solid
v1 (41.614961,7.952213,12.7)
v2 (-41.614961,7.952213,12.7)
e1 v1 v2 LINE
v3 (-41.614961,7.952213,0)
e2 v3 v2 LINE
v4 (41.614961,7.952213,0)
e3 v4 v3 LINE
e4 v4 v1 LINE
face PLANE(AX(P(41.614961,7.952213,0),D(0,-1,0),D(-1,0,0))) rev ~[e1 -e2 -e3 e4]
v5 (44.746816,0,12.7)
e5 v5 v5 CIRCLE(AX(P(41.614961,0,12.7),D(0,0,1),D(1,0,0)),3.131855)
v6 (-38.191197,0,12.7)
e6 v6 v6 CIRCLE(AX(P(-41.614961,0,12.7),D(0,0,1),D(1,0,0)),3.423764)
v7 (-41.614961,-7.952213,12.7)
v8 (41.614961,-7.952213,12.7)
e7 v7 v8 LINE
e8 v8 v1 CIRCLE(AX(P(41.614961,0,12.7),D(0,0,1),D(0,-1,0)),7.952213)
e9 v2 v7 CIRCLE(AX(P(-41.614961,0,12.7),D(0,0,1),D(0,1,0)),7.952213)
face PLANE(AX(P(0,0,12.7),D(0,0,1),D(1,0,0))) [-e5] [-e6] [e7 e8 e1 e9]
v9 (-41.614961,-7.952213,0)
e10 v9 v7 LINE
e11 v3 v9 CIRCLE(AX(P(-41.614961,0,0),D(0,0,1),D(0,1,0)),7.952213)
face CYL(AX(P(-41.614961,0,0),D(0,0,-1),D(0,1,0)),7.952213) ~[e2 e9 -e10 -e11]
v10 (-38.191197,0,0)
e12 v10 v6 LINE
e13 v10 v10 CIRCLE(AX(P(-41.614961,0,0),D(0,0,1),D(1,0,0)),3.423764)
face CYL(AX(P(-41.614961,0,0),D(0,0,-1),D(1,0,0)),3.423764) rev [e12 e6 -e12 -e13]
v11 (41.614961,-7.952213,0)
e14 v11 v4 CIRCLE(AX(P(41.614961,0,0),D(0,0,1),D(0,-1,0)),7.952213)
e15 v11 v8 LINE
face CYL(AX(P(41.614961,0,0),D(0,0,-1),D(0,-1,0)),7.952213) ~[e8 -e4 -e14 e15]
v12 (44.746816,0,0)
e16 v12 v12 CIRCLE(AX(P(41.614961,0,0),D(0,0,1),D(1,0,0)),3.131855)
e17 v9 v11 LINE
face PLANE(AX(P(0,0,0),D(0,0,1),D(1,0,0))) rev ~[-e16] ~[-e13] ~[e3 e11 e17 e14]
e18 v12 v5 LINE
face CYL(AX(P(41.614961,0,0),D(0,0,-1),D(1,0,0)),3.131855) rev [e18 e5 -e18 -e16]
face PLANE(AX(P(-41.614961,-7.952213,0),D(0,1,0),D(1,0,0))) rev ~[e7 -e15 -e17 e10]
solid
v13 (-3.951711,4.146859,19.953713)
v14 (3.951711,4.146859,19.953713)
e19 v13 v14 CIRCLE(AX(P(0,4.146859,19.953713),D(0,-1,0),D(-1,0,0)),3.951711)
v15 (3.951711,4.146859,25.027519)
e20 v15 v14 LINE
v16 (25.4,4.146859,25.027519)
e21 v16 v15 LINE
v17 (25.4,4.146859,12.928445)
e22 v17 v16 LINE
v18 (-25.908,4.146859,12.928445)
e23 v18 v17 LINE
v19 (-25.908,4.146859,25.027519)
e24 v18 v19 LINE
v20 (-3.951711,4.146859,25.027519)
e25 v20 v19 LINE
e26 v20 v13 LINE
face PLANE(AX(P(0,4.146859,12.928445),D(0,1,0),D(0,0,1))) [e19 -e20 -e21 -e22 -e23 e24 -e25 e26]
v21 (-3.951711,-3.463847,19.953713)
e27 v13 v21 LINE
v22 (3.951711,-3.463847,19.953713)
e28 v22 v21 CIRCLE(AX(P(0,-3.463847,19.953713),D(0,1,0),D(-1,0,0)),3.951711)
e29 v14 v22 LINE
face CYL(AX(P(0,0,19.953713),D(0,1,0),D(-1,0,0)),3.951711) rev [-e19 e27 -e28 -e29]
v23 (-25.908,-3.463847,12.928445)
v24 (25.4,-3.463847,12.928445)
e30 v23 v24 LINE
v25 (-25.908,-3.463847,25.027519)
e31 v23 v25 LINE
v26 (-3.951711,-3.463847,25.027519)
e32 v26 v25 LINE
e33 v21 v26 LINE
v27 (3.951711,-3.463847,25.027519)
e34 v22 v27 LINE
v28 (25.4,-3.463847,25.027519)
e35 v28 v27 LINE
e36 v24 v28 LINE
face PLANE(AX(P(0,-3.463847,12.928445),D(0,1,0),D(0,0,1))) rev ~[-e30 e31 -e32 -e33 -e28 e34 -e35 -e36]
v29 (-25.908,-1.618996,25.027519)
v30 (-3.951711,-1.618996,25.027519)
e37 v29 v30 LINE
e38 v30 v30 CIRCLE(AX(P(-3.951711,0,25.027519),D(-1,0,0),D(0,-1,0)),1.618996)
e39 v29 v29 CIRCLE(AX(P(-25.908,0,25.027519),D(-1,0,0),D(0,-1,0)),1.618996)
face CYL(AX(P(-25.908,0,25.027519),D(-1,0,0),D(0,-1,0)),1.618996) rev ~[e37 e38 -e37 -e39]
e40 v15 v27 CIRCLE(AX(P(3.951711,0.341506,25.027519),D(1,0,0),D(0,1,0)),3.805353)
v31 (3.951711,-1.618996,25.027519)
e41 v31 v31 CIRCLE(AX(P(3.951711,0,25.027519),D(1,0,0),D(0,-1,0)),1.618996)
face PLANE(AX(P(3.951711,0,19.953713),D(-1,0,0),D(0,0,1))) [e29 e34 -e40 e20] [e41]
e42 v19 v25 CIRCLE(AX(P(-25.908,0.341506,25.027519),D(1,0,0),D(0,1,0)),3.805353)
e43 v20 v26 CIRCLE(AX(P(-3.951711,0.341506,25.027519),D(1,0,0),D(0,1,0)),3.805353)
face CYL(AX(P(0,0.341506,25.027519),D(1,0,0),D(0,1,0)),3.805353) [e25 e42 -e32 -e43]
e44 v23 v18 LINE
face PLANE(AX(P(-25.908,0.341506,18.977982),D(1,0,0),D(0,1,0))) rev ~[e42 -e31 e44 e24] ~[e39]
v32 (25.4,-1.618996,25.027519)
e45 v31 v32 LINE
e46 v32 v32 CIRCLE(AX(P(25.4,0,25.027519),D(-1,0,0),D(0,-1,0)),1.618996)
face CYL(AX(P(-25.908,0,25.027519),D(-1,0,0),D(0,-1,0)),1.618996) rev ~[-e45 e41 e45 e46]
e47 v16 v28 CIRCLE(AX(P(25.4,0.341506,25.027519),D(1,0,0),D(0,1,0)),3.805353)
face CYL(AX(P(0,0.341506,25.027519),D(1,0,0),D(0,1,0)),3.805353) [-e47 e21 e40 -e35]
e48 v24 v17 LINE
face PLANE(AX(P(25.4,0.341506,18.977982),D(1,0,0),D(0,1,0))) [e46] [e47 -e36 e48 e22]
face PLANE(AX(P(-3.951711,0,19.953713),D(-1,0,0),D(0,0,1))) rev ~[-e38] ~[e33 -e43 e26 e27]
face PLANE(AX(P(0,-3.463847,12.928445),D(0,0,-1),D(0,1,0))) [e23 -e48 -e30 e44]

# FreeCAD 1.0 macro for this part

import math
import FreeCAD as App
import Part
import Sketcher

V = App.Vector
Q = App.Units.Quantity

doc = App.newDocument("Part")
body = doc.addObject("PartDesign::Body", "Body")

sketch1 = body.newObject("Sketcher::SketchObject", "Sketch")
sketch1.AttachmentSupport = (doc.getObject("XY_Plane"), [""])
sketch1.MapMode = "FlatFace"
sketch1.addGeometry(Part.LineSegment(V(-41.6, -8, 0), V(41.6, -8, 0)), False)
sketch1.addGeometry(Part.ArcOfCircle(Part.Circle(V(41.6, 0, 0), V(0, 0, 1), 8), math.radians(-90), math.radians(90)), False)
sketch1.addGeometry(Part.LineSegment(V(41.6, 8, 0), V(-41.6, 8, 0)), False)
sketch1.addGeometry(Part.ArcOfCircle(Part.Circle(V(-41.6, 0, 0), V(0, 0, 1), 8), math.radians(90), math.radians(270)), False)
sketch1.addGeometry(Part.Circle(V(-41.6, 0, 0), V(0, 0, 1), 3.4), False)
sketch1.addGeometry(Part.Circle(V(41.6, 0, 0), V(0, 0, 1), 3.1), False)
sketch1.addConstraint(Sketcher.Constraint("Tangent", 0, 2, 1, 1))
sketch1.addConstraint(Sketcher.Constraint("Tangent", 1, 2, 2, 1))
sketch1.addConstraint(Sketcher.Constraint("Tangent", 2, 2, 3, 1))
sketch1.addConstraint(Sketcher.Constraint("Tangent", 3, 2, 0, 1))
sketch1.addConstraint(Sketcher.Constraint("Horizontal", 0))
sketch1.addConstraint(Sketcher.Constraint("Horizontal", 2))
sketch1.addConstraint(Sketcher.Constraint("Coincident", 4, 3, 3, 3))
sketch1.addConstraint(Sketcher.Constraint("Coincident", 5, 3, 1, 3))
sketch1.addConstraint(Sketcher.Constraint("Symmetric", 1, 3, 3, 3, -1, 1))
sketch1.addConstraint(Sketcher.Constraint("Diameter", 5, Q("6.26371 mm")))
sketch1.addConstraint(Sketcher.Constraint("Diameter", 4, Q("6.847528 mm")))
sketch1.addConstraint(Sketcher.Constraint("Radius", 1, Q("7.952213 mm")))
sketch1.addConstraint(Sketcher.Constraint("DistanceX", 0, 1, 0, 2, Q("83.229922 mm")))
pad1 = body.newObject("PartDesign::Pad", "Pad")
pad1.Profile = sketch1
pad1.Length = Q("0.5 in")
body2 = doc.addObject("PartDesign::Body", "Body001")

sketch2 = body2.newObject("Sketcher::SketchObject", "Sketch001")
sketch2.AttachmentSupport = (doc.getObject("YZ_Plane001"), [""])
sketch2.MapMode = "FlatFace"
sketch2.addGeometry(Part.LineSegment(V(-3.5, 25, 0), V(-3.5, 12.9, 0)), False)
sketch2.addGeometry(Part.LineSegment(V(-3.5, 12.9, 0), V(4.1, 12.9, 0)), False)
sketch2.addGeometry(Part.LineSegment(V(4.1, 12.9, 0), V(4.1, 25, 0)), False)
sketch2.addGeometry(Part.ArcOfCircle(Part.Circle(V(0.3, 25, 0), V(0, 0, 1), 3.8), math.radians(0), math.radians(180)), False)
sketch2.addConstraint(Sketcher.Constraint("Coincident", 0, 2, 1, 1))
sketch2.addConstraint(Sketcher.Constraint("Coincident", 1, 2, 2, 1))
sketch2.addConstraint(Sketcher.Constraint("Tangent", 2, 2, 3, 1))
sketch2.addConstraint(Sketcher.Constraint("Tangent", 3, 2, 0, 1))
sketch2.addConstraint(Sketcher.Constraint("Vertical", 0))
sketch2.addConstraint(Sketcher.Constraint("Horizontal", 1))
sketch2.addConstraint(Sketcher.Constraint("Vertical", 2))
sketch2.addConstraint(Sketcher.Constraint("Radius", 3, Q("3.805353 mm")))
sketch2.addConstraint(Sketcher.Constraint("DistanceY", 0, 2, 0, 1, Q("12.099074 mm")))
sketch2.addConstraint(Sketcher.Constraint("DistanceY", -1, 1, 3, 3, Q("25.027519 mm")))
sketch2.addConstraint(Sketcher.Constraint("DistanceX", -1, 1, 1, 2, Q("4.146859 mm")))
pad2 = body2.newObject("PartDesign::Pad", "Pad001")
pad2.Profile = sketch2
pad2.Length = Q("1 in")

sketch3 = body2.newObject("Sketcher::SketchObject", "Sketch002")
sketch3.AttachmentSupport = (doc.getObject("YZ_Plane001"), [""])
sketch3.MapMode = "FlatFace"
sketch3.addGeometry(Part.LineSegment(V(-3.5, 25, 0), V(-3.5, 12.9, 0)), False)
sketch3.addGeometry(Part.LineSegment(V(-3.5, 12.9, 0), V(4.1, 12.9, 0)), False)
sketch3.addGeometry(Part.LineSegment(V(4.1, 12.9, 0), V(4.1, 25, 0)), False)
sketch3.addGeometry(Part.ArcOfCircle(Part.Circle(V(0.3, 25, 0), V(0, 0, 1), 3.8), math.radians(0), math.radians(180)), False)
sketch3.addConstraint(Sketcher.Constraint("Coincident", 0, 2, 1, 1))
sketch3.addConstraint(Sketcher.Constraint("Coincident", 1, 2, 2, 1))
sketch3.addConstraint(Sketcher.Constraint("Tangent", 2, 2, 3, 1))
sketch3.addConstraint(Sketcher.Constraint("Tangent", 3, 2, 0, 1))
sketch3.addConstraint(Sketcher.Constraint("Vertical", 0))
sketch3.addConstraint(Sketcher.Constraint("Horizontal", 1))
sketch3.addConstraint(Sketcher.Constraint("Vertical", 2))
sketch3.addConstraint(Sketcher.Constraint("Radius", 3, Q("3.805353 mm")))
sketch3.addConstraint(Sketcher.Constraint("DistanceY", 0, 2, 0, 1, Q("12.099074 mm")))
sketch3.addConstraint(Sketcher.Constraint("DistanceY", -1, 1, 3, 3, Q("25.027519 mm")))
sketch3.addConstraint(Sketcher.Constraint("DistanceX", -1, 1, 1, 2, Q("4.146859 mm")))
pad3 = body2.newObject("PartDesign::Pad", "Pad002")
pad3.Profile = sketch3
pad3.Length = Q("1.02 in")
pad3.Reversed = True

sketch4 = body2.newObject("Sketcher::SketchObject", "Sketch003")
sketch4.AttachmentSupport = (doc.getObject("YZ_Plane001"), [""])
sketch4.MapMode = "FlatFace"
sketch4.AttachmentOffset = App.Placement(V(0, 0, -1.02 * 25.4), App.Rotation())
sketch4.addGeometry(Part.Circle(V(0, 25, 0), V(0, 0, 1), 1.6), False)
sketch4.addConstraint(Sketcher.Constraint("PointOnObject", 0, 3, -2))
sketch4.addConstraint(Sketcher.Constraint("Diameter", 0, Q("3.237992 mm")))
sketch4.addConstraint(Sketcher.Constraint("DistanceY", -1, 1, 0, 3, Q("25.027519 mm")))
pocket1 = body2.newObject("PartDesign::Pocket", "Pocket")
pocket1.Profile = sketch4
pocket1.Length = Q("2.2 in")
pocket1.Reversed = True

sketch5 = body2.newObject("Sketcher::SketchObject", "Sketch004")
sketch5.AttachmentSupport = (doc.getObject("XZ_Plane001"), [""])
sketch5.MapMode = "FlatFace"
sketch5.addGeometry(Part.LineSegment(V(4, 20, 0), V(4, 42.2, 0)), False)
sketch5.addGeometry(Part.LineSegment(V(4, 42.2, 0), V(-4, 42.2, 0)), False)
sketch5.addGeometry(Part.LineSegment(V(-4, 42.2, 0), V(-4, 20, 0)), False)
sketch5.addGeometry(Part.ArcOfCircle(Part.Circle(V(0, 20, 0), V(0, 0, 1), 4), math.radians(180), math.radians(360)), False)
sketch5.addConstraint(Sketcher.Constraint("Coincident", 0, 2, 1, 1))
sketch5.addConstraint(Sketcher.Constraint("Coincident", 1, 2, 2, 1))
sketch5.addConstraint(Sketcher.Constraint("Tangent", 2, 2, 3, 1))
sketch5.addConstraint(Sketcher.Constraint("Tangent", 3, 2, 0, 1))
sketch5.addConstraint(Sketcher.Constraint("Vertical", 0))
sketch5.addConstraint(Sketcher.Constraint("Horizontal", 1))
sketch5.addConstraint(Sketcher.Constraint("Vertical", 2))
sketch5.addConstraint(Sketcher.Constraint("PointOnObject", 3, 3, -2))
sketch5.addConstraint(Sketcher.Constraint("Radius", 3, Q("3.951711 mm")))
sketch5.addConstraint(Sketcher.Constraint("DistanceY", 0, 1, 0, 2, Q("22.24668 mm")))
sketch5.addConstraint(Sketcher.Constraint("DistanceY", -1, 1, 3, 3, Q("19.953713 mm")))
pocket2 = body2.newObject("PartDesign::Pocket", "Pocket001")
pocket2.Profile = sketch5
pocket2.Length = Q("1 in")

sketch6 = body2.newObject("Sketcher::SketchObject", "Sketch005")
sketch6.AttachmentSupport = (doc.getObject("XZ_Plane001"), [""])
sketch6.MapMode = "FlatFace"
sketch6.addGeometry(Part.LineSegment(V(4, 20, 0), V(4, 42.2, 0)), False)
sketch6.addGeometry(Part.LineSegment(V(4, 42.2, 0), V(-4, 42.2, 0)), False)
sketch6.addGeometry(Part.LineSegment(V(-4, 42.2, 0), V(-4, 20, 0)), False)
sketch6.addGeometry(Part.ArcOfCircle(Part.Circle(V(0, 20, 0), V(0, 0, 1), 4), math.radians(180), math.radians(360)), False)
sketch6.addConstraint(Sketcher.Constraint("Coincident", 0, 2, 1, 1))
sketch6.addConstraint(Sketcher.Constraint("Coincident", 1, 2, 2, 1))
sketch6.addConstraint(Sketcher.Constraint("Tangent", 2, 2, 3, 1))
sketch6.addConstraint(Sketcher.Constraint("Tangent", 3, 2, 0, 1))
sketch6.addConstraint(Sketcher.Constraint("Vertical", 0))
sketch6.addConstraint(Sketcher.Constraint("Horizontal", 1))
sketch6.addConstraint(Sketcher.Constraint("Vertical", 2))
sketch6.addConstraint(Sketcher.Constraint("PointOnObject", 3, 3, -2))
sketch6.addConstraint(Sketcher.Constraint("Radius", 3, Q("3.951711 mm")))
sketch6.addConstraint(Sketcher.Constraint("DistanceY", 0, 1, 0, 2, Q("22.24668 mm")))
sketch6.addConstraint(Sketcher.Constraint("DistanceY", -1, 1, 3, 3, Q("19.953713 mm")))
pocket3 = body2.newObject("PartDesign::Pocket", "Pocket002")
pocket3.Profile = sketch6
pocket3.Length = Q("0.82 in")
pocket3.Reversed = True

doc.recompute()
